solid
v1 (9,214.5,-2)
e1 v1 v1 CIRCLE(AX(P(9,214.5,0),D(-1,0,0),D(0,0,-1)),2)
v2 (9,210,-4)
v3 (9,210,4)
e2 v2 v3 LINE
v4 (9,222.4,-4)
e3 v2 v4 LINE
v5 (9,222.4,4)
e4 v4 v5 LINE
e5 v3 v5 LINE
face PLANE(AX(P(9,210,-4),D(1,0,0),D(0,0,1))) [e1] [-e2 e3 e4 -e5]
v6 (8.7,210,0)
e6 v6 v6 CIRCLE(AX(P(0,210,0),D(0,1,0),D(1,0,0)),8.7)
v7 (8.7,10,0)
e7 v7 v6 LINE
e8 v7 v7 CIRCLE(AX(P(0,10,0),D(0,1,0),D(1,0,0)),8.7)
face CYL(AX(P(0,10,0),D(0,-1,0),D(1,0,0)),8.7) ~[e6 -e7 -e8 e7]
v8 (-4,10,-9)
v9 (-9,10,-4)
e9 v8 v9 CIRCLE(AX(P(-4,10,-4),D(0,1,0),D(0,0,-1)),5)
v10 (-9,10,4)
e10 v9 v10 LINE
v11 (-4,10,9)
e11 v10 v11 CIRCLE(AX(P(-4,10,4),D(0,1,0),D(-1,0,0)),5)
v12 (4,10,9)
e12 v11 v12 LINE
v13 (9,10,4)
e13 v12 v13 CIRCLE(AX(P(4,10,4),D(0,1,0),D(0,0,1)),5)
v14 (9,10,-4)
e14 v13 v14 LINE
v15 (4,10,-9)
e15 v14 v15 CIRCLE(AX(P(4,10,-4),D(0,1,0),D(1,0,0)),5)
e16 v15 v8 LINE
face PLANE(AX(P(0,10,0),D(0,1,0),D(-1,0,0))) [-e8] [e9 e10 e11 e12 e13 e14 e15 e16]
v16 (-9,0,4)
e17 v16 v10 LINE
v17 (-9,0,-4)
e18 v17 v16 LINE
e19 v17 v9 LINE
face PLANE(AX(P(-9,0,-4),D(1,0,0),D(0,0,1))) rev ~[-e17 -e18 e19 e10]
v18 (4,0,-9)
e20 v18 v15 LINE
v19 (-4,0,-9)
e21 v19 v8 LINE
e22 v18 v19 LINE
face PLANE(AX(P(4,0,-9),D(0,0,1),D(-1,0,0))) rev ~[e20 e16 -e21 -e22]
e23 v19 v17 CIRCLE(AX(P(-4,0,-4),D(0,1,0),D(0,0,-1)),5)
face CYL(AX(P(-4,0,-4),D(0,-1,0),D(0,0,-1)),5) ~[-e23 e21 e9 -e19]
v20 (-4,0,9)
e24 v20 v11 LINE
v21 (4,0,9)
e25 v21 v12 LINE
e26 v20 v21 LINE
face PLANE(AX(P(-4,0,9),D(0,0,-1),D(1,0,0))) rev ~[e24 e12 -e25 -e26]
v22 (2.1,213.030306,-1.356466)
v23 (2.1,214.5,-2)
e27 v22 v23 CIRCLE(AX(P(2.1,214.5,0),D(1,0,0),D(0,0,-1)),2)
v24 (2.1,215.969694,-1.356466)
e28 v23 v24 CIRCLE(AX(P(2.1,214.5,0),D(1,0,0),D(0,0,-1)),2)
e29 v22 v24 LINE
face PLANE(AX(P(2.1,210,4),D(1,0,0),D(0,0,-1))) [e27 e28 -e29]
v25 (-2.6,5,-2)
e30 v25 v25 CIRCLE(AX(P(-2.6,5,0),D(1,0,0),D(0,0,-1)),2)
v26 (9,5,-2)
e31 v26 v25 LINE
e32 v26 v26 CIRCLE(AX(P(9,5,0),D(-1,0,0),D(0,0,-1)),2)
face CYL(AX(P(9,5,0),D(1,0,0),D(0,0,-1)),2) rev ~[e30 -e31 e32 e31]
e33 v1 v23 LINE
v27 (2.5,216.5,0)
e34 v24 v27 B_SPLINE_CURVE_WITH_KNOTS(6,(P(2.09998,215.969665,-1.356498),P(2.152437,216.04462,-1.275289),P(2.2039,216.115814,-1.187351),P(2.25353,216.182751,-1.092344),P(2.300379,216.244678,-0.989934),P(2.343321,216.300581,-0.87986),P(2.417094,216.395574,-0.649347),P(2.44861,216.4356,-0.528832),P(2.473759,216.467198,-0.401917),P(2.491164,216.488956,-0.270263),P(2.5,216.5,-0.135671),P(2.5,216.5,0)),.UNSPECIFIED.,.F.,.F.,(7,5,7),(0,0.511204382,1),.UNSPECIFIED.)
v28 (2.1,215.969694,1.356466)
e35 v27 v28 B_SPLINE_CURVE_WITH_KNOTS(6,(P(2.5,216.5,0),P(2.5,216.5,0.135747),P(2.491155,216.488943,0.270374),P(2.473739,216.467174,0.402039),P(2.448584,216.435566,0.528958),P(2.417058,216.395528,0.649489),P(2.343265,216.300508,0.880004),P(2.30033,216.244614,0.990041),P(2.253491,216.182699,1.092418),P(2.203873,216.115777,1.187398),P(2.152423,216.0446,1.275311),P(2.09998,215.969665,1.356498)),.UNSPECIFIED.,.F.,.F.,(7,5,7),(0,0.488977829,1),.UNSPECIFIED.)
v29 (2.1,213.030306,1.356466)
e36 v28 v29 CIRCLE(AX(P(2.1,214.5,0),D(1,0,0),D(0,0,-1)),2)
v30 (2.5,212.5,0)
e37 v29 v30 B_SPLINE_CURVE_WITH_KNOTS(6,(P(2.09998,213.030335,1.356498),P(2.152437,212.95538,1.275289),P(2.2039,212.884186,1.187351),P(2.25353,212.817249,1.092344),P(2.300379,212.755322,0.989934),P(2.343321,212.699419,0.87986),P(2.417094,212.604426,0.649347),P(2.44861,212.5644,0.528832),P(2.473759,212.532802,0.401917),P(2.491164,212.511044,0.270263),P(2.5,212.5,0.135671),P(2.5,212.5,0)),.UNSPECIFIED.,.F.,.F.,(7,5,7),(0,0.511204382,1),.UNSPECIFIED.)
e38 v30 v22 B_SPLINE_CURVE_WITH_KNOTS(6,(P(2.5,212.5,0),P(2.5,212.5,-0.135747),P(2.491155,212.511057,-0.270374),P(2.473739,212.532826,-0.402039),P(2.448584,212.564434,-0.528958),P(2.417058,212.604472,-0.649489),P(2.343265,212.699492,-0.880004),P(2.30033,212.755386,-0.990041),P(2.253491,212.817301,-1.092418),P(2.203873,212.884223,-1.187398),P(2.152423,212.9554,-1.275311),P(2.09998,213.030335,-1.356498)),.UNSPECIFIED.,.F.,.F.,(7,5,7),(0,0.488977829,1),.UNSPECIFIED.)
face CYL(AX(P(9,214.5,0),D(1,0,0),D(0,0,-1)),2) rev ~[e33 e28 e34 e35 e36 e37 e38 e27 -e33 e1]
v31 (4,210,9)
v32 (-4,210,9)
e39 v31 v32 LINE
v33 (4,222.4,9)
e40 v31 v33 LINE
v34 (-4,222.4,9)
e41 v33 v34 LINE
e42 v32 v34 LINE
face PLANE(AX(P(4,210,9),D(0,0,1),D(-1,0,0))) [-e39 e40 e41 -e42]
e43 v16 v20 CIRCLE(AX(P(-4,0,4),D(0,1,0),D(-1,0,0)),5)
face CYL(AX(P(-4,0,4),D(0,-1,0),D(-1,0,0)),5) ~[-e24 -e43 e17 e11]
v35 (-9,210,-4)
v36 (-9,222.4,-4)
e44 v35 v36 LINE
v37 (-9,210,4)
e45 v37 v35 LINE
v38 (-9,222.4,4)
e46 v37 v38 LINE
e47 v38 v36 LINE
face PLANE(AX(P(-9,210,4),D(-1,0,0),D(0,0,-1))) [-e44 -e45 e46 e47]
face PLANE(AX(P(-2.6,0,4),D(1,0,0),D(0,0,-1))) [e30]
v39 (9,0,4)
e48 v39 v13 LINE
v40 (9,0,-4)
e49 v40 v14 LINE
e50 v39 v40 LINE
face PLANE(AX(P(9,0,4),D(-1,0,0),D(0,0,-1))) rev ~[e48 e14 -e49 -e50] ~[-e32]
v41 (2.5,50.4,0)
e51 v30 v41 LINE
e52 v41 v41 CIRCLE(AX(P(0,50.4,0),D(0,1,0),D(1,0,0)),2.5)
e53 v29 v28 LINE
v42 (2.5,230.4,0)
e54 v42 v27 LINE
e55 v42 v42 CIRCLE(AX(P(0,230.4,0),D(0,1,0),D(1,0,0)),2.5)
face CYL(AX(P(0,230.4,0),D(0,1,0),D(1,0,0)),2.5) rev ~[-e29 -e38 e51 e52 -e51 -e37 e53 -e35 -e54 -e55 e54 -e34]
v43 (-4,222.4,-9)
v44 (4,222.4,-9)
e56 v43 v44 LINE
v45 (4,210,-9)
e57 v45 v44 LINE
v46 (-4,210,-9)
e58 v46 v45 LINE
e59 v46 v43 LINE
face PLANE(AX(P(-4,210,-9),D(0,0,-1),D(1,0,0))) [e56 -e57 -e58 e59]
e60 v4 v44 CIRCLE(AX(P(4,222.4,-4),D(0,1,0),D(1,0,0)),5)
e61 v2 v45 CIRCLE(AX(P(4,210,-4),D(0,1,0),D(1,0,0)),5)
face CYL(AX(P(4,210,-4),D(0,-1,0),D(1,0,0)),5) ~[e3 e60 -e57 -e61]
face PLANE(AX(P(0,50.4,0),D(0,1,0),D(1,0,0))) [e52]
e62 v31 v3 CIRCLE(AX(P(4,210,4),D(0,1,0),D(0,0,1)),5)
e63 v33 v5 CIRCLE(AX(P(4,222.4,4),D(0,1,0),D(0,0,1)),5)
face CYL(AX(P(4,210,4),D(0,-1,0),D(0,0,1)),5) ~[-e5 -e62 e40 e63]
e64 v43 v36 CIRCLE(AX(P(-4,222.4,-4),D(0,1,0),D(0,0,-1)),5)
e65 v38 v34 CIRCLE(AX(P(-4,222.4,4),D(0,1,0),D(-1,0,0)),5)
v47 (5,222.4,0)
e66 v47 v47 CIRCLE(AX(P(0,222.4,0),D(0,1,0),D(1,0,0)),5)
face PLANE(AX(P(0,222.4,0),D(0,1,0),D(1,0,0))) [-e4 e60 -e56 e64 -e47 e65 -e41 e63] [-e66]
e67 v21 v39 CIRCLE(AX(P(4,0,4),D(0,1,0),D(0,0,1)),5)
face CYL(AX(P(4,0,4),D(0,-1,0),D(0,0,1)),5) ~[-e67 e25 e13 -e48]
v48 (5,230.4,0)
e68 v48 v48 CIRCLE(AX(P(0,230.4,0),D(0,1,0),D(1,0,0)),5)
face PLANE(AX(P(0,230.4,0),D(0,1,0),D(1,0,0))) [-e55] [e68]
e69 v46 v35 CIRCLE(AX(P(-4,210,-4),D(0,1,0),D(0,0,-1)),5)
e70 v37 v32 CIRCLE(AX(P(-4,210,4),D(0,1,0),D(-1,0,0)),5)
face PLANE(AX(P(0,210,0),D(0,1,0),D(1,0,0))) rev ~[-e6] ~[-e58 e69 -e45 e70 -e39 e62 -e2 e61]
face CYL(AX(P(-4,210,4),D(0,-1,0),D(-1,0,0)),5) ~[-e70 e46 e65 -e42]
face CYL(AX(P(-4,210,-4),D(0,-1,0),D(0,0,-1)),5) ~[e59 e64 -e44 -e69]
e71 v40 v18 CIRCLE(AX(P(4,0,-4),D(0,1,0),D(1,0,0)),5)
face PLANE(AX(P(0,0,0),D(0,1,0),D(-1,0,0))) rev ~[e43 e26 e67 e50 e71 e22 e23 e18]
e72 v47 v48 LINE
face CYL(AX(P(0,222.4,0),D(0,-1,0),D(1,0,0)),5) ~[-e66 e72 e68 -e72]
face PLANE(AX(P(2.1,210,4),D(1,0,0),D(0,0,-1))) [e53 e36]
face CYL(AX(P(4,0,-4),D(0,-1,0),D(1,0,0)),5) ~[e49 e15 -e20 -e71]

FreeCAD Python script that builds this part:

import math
import FreeCAD as App
import Part
import Sketcher

doc = App.newDocument("Part")
body = doc.addObject("PartDesign::Body", "Body")

# Sketch on XZ plane
sketch1 = doc.addObject("Sketcher::SketchObject", "Sketch")
body.addObject(sketch1)
sketch1.AttachmentSupport = (doc.XZ_Plane, [""])
sketch1.MapMode = "FlatFace"
sketch1.addGeometry([
    Part.ArcOfCircle(Part.Circle(App.Vector(4, -4, 0), App.Vector(0, 0, 1), 5), math.radians(-90), math.radians(0)),  # 0
    Part.LineSegment(App.Vector(4, -9, 0), App.Vector(-4, -9, 0)),  # 1
    Part.ArcOfCircle(Part.Circle(App.Vector(-4, -4, 0), App.Vector(0, 0, 1), 5), math.radians(180), math.radians(270)),  # 2
    Part.LineSegment(App.Vector(-9, -4, 0), App.Vector(-9, 4, 0)),  # 3
    Part.ArcOfCircle(Part.Circle(App.Vector(-4, 4, 0), App.Vector(0, 0, 1), 5), math.radians(90), math.radians(180)),  # 4
    Part.LineSegment(App.Vector(-4, 9, 0), App.Vector(4, 9, 0)),  # 5
    Part.ArcOfCircle(Part.Circle(App.Vector(4, 4, 0), App.Vector(0, 0, 1), 5), math.radians(0), math.radians(90)),  # 6
    Part.LineSegment(App.Vector(9, 4, 0), App.Vector(9, -4, 0)),  # 7
], False)
sketch1.addConstraint([
    Sketcher.Constraint("Tangent", 0, 1, 1, 1),
    Sketcher.Constraint("Tangent", 1, 2, 2, 2),
    Sketcher.Constraint("Tangent", 2, 1, 3, 1),
    Sketcher.Constraint("Tangent", 3, 2, 4, 2),
    Sketcher.Constraint("Tangent", 4, 1, 5, 1),
    Sketcher.Constraint("Tangent", 5, 2, 6, 2),
    Sketcher.Constraint("Tangent", 6, 1, 7, 1),
    Sketcher.Constraint("Tangent", 7, 2, 0, 2),
    Sketcher.Constraint("Horizontal", 1),
    Sketcher.Constraint("Vertical", 3),
    Sketcher.Constraint("Horizontal", 5),
    Sketcher.Constraint("Vertical", 7),
    Sketcher.Constraint("Equal", 0, 2),
    Sketcher.Constraint("Equal", 2, 4),
    Sketcher.Constraint("Equal", 4, 6),
    Sketcher.Constraint("Symmetric", 0, 3, 4, 3, -1, 1),
    Sketcher.Constraint("Equal", 5, 3),
    Sketcher.Constraint("Radius", 0, 5.0),
    Sketcher.Constraint("DistanceX", 1, 2, 1, 1, 8.0),
])
pad1 = doc.addObject("PartDesign::Pad", "Pad")
body.addObject(pad1)
pad1.Profile = sketch1
pad1.Length = 10
pad1.Reversed = True

# Sketch on XZ plane
sketch2 = doc.addObject("Sketcher::SketchObject", "Sketch001")
body.addObject(sketch2)
sketch2.AttachmentSupport = (doc.XZ_Plane, [""])
sketch2.MapMode = "FlatFace"
sketch2.AttachmentOffset = App.Placement(App.Vector(0, 0, -10), App.Rotation())
sketch2.addGeometry(Part.Circle(App.Vector(0, 0, 0), App.Vector(0, 0, 1), 9), False)
sketch2.addConstraint([
    Sketcher.Constraint("Coincident", 0, 3, -1, 1),
    Sketcher.Constraint("Diameter", 0, 17.4),
])
pad2 = doc.addObject("PartDesign::Pad", "Pad001")
body.addObject(pad2)
pad2.Profile = sketch2
pad2.Length = 200
pad2.Reversed = True

# Sketch on XZ plane
sketch3 = doc.addObject("Sketcher::SketchObject", "Sketch002")
body.addObject(sketch3)
sketch3.AttachmentSupport = (doc.XZ_Plane, [""])
sketch3.MapMode = "FlatFace"
sketch3.AttachmentOffset = App.Placement(App.Vector(0, 0, -210), App.Rotation())
sketch3.addGeometry([
    Part.LineSegment(App.Vector(4, -9, 0), App.Vector(-4, -9, 0)),  # 0
    Part.ArcOfCircle(Part.Circle(App.Vector(-4, -4, 0), App.Vector(0, 0, 1), 5), math.radians(180), math.radians(270)),  # 1
    Part.LineSegment(App.Vector(-9, -4, 0), App.Vector(-9, 4, 0)),  # 2
    Part.ArcOfCircle(Part.Circle(App.Vector(-4, 4, 0), App.Vector(0, 0, 1), 5), math.radians(90), math.radians(180)),  # 3
    Part.LineSegment(App.Vector(-4, 9, 0), App.Vector(4, 9, 0)),  # 4
    Part.ArcOfCircle(Part.Circle(App.Vector(4, 4, 0), App.Vector(0, 0, 1), 5), math.radians(0), math.radians(90)),  # 5
    Part.LineSegment(App.Vector(9, 4, 0), App.Vector(9, -4, 0)),  # 6
    Part.ArcOfCircle(Part.Circle(App.Vector(4, -4, 0), App.Vector(0, 0, 1), 5), math.radians(-90), math.radians(0)),  # 7
], False)
sketch3.addConstraint([
    Sketcher.Constraint("Tangent", 0, 2, 1, 2),
    Sketcher.Constraint("Tangent", 1, 1, 2, 1),
    Sketcher.Constraint("Tangent", 2, 2, 3, 2),
    Sketcher.Constraint("Tangent", 3, 1, 4, 1),
    Sketcher.Constraint("Tangent", 4, 2, 5, 2),
    Sketcher.Constraint("Tangent", 5, 1, 6, 1),
    Sketcher.Constraint("Tangent", 6, 2, 7, 2),
    Sketcher.Constraint("Tangent", 7, 1, 0, 1),
    Sketcher.Constraint("Horizontal", 0),
    Sketcher.Constraint("Vertical", 2),
    Sketcher.Constraint("Horizontal", 4),
    Sketcher.Constraint("Vertical", 6),
    Sketcher.Constraint("Equal", 1, 3),
    Sketcher.Constraint("Equal", 3, 5),
    Sketcher.Constraint("Equal", 5, 7),
    Sketcher.Constraint("Symmetric", 1, 3, 5, 3, -1, 1),
    Sketcher.Constraint("Equal", 4, 2),
    Sketcher.Constraint("Radius", 1, 5.0),
    Sketcher.Constraint("DistanceX", 0, 2, 0, 1, 8.0),
])
pad3 = doc.addObject("PartDesign::Pad", "Pad002")
body.addObject(pad3)
pad3.Profile = sketch3
pad3.Length = 12.4
pad3.Reversed = True

# Sketch on XZ plane
sketch4 = doc.addObject("Sketcher::SketchObject", "Sketch003")
body.addObject(sketch4)
sketch4.AttachmentSupport = (doc.XZ_Plane, [""])
sketch4.MapMode = "FlatFace"
sketch4.AttachmentOffset = App.Placement(App.Vector(0, 0, -222.4), App.Rotation())
sketch4.addGeometry(Part.Circle(App.Vector(0, 0, 0), App.Vector(0, 0, 1), 5), False)
sketch4.addConstraint([
    Sketcher.Constraint("Coincident", 0, 3, -1, 1),
    Sketcher.Constraint("Diameter", 0, 10.0),
])
pad4 = doc.addObject("PartDesign::Pad", "Pad003")
body.addObject(pad4)
pad4.Profile = sketch4
pad4.Length = 8
pad4.Reversed = True

# Sketch on XZ plane
sketch5 = doc.addObject("Sketcher::SketchObject", "Sketch004")
body.addObject(sketch5)
sketch5.AttachmentSupport = (doc.XZ_Plane, [""])
sketch5.MapMode = "FlatFace"
sketch5.AttachmentOffset = App.Placement(App.Vector(0, 0, -230.4), App.Rotation())
sketch5.addGeometry(Part.Circle(App.Vector(0, 0, 0), App.Vector(0, 0, 1), 2.5), False)
sketch5.addConstraint([
    Sketcher.Constraint("Coincident", 0, 3, -1, 1),
    Sketcher.Constraint("Diameter", 0, 5.0),
])
pocket1 = doc.addObject("PartDesign::Pocket", "Pocket")
body.addObject(pocket1)
pocket1.Profile = sketch5
pocket1.Length = 180
pocket1.Reversed = True

# Sketch on YZ plane
sketch6 = doc.addObject("Sketcher::SketchObject", "Sketch005")
body.addObject(sketch6)
sketch6.AttachmentSupport = (doc.YZ_Plane, [""])
sketch6.MapMode = "FlatFace"
sketch6.AttachmentOffset = App.Placement(App.Vector(0, 0, 9), App.Rotation())
sketch6.addGeometry(Part.Circle(App.Vector(5, 0, 0), App.Vector(0, 0, 1), 2), False)
sketch6.addConstraint([
    Sketcher.Constraint("PointOnObject", 0, 3, -1),
    Sketcher.Constraint("Diameter", 0, 4.0),
    Sketcher.Constraint("DistanceX", -1, 1, 0, 3, 5.0),
])
pocket2 = doc.addObject("PartDesign::Pocket", "Pocket001")
body.addObject(pocket2)
pocket2.Profile = sketch6
pocket2.Length = 11.6

# Sketch on YZ plane
sketch7 = doc.addObject("Sketcher::SketchObject", "Sketch006")
body.addObject(sketch7)
sketch7.AttachmentSupport = (doc.YZ_Plane, [""])
sketch7.MapMode = "FlatFace"
sketch7.AttachmentOffset = App.Placement(App.Vector(0, 0, 9), App.Rotation())
sketch7.addGeometry(Part.Circle(App.Vector(214.5, 0, 0), App.Vector(0, 0, 1), 2), False)
sketch7.addConstraint([
    Sketcher.Constraint("PointOnObject", 0, 3, -1),
    Sketcher.Constraint("Diameter", 0, 4.0),
    Sketcher.Constraint("DistanceX", -1, 1, 0, 3, 214.5),
])
pocket3 = doc.addObject("PartDesign::Pocket", "Pocket002")
body.addObject(pocket3)
pocket3.Profile = sketch7
pocket3.Length = 6.9

doc.recompute()
